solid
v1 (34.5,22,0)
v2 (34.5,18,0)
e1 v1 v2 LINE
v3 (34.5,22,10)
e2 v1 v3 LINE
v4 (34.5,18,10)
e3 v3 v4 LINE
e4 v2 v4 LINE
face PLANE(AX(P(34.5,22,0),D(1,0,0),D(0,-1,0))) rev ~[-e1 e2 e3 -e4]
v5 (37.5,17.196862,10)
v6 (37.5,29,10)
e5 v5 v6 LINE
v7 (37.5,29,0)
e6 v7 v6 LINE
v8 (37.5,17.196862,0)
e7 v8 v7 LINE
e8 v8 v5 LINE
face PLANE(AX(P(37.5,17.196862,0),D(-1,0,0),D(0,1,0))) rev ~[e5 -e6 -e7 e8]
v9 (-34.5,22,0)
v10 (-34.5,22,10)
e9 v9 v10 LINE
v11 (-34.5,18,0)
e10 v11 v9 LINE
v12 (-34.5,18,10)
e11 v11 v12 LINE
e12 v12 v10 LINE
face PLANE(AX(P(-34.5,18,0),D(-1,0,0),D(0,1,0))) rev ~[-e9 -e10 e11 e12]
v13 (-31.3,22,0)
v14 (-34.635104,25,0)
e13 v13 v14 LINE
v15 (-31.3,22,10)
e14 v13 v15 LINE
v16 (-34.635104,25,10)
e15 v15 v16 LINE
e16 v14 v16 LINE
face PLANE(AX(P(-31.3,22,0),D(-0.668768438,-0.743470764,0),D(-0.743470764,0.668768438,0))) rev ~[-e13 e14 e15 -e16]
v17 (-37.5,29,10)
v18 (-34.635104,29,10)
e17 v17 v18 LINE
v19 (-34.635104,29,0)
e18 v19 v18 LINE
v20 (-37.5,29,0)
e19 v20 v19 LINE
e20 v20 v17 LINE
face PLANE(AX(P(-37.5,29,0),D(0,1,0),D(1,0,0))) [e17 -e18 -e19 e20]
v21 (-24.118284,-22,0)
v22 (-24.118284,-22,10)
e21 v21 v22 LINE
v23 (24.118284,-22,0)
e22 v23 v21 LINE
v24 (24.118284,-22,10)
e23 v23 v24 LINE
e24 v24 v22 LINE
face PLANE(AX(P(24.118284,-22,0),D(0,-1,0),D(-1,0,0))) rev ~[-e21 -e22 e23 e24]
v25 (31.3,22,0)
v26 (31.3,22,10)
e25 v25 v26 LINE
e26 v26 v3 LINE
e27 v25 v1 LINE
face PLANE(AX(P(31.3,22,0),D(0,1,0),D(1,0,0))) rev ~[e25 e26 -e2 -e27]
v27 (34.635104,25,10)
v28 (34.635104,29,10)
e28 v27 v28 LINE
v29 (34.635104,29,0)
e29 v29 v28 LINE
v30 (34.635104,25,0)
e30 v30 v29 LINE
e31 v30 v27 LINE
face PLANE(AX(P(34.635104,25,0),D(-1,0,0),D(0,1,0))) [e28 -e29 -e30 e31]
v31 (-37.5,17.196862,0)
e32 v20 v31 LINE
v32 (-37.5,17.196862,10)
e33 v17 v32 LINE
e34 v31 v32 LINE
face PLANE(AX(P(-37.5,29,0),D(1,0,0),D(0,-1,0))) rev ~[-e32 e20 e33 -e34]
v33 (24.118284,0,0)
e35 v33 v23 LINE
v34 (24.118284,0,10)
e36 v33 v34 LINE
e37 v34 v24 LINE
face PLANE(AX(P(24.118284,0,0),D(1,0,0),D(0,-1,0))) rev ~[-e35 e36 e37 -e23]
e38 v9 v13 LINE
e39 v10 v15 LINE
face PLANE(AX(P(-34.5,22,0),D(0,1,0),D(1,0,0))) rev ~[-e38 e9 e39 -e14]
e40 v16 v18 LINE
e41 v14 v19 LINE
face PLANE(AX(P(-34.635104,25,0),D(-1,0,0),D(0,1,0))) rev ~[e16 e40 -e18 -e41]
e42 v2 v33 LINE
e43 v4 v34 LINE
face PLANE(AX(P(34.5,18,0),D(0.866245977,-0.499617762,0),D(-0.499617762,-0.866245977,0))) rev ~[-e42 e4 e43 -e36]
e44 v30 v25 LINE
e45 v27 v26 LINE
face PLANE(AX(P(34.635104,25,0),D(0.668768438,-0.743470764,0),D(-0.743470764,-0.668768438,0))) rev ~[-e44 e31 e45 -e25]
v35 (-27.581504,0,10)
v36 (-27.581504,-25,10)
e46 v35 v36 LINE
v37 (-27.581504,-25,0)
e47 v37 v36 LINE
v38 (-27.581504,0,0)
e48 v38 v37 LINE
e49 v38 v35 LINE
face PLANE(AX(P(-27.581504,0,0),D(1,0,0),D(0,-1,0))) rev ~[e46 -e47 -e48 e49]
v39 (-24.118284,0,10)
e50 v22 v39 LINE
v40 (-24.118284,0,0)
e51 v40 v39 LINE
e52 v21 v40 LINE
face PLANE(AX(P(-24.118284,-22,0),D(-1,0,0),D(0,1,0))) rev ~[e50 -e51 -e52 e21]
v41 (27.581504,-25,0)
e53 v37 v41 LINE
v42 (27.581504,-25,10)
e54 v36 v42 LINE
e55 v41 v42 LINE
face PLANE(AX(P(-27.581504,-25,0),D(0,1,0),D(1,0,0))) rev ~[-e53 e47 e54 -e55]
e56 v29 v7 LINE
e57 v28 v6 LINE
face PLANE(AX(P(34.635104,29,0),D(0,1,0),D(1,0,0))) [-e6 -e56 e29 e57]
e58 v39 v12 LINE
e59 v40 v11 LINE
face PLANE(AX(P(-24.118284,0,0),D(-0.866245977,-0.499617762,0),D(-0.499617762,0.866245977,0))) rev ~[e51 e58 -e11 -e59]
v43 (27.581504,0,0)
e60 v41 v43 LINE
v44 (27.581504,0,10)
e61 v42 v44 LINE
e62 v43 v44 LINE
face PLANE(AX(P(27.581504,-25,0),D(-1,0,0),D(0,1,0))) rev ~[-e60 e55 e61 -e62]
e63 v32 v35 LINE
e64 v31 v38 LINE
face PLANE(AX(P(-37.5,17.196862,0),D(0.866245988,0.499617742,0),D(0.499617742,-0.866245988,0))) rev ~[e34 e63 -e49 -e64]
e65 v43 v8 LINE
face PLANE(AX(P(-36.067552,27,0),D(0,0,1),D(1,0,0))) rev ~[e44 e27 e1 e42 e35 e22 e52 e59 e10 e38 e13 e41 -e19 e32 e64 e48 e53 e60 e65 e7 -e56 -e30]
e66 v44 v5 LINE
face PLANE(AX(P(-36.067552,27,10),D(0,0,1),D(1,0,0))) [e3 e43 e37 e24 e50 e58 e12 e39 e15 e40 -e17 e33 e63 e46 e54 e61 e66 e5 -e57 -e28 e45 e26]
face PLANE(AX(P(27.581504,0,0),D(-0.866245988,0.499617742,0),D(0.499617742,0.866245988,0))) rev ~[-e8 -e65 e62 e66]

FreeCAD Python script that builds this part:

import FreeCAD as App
import Part
import Sketcher

V = App.Vector

doc = App.newDocument("Part")
body = doc.addObject("PartDesign::Body", "Body")

# Sketch on XY plane
sketch1 = body.newObject("Sketcher::SketchObject", "Sketch")
sketch1.AttachmentSupport = (doc.getObject("XY_Plane"), [""])
sketch1.MapMode = "FlatFace"
sketch1.addGeometry([
    Part.LineSegment(V(-37.5, 29, 0), V(-37.5, 17.2, 0)),  # 0
    Part.LineSegment(V(-37.5, 17.2, 0), V(-27.6, 0, 0)),  # 1
    Part.LineSegment(V(-27.6, 0, 0), V(-27.6, -25, 0)),  # 2
    Part.LineSegment(V(-27.6, -25, 0), V(27.6, -25, 0)),  # 3
    Part.LineSegment(V(27.6, -25, 0), V(27.6, 0, 0)),  # 4
    Part.LineSegment(V(27.6, 0, 0), V(37.5, 17.2, 0)),  # 5
    Part.LineSegment(V(37.5, 17.2, 0), V(37.5, 29, 0)),  # 6
    Part.LineSegment(V(37.5, 29, 0), V(34.6, 29, 0)),  # 7
    Part.LineSegment(V(34.6, 29, 0), V(34.6, 25, 0)),  # 8
    Part.LineSegment(V(34.6, 25, 0), V(31.3, 22, 0)),  # 9
    Part.LineSegment(V(31.3, 22, 0), V(34.5, 22, 0)),  # 10
    Part.LineSegment(V(34.5, 22, 0), V(34.5, 18, 0)),  # 11
    Part.LineSegment(V(34.5, 18, 0), V(24.1, 0, 0)),  # 12
    Part.LineSegment(V(24.1, 0, 0), V(24.1, -22, 0)),  # 13
    Part.LineSegment(V(24.1, -22, 0), V(-24.1, -22, 0)),  # 14
    Part.LineSegment(V(-24.1, -22, 0), V(-24.1, 0, 0)),  # 15
    Part.LineSegment(V(-24.1, 0, 0), V(-34.5, 18, 0)),  # 16
    Part.LineSegment(V(-34.5, 18, 0), V(-34.5, 22, 0)),  # 17
    Part.LineSegment(V(-34.5, 22, 0), V(-31.3, 22, 0)),  # 18
    Part.LineSegment(V(-31.3, 22, 0), V(-34.6, 25, 0)),  # 19
    Part.LineSegment(V(-34.6, 25, 0), V(-34.6, 29, 0)),  # 20
    Part.LineSegment(V(-34.6, 29, 0), V(-37.5, 29, 0)),  # 21
], False)
sketch1.addConstraint([
    Sketcher.Constraint("Coincident", 0, 2, 1, 1),
    Sketcher.Constraint("Coincident", 1, 2, 2, 1),
    Sketcher.Constraint("Coincident", 2, 2, 3, 1),
    Sketcher.Constraint("Coincident", 3, 2, 4, 1),
    Sketcher.Constraint("Coincident", 4, 2, 5, 1),
    Sketcher.Constraint("Coincident", 5, 2, 6, 1),
    Sketcher.Constraint("Coincident", 6, 2, 7, 1),
    Sketcher.Constraint("Coincident", 7, 2, 8, 1),
    Sketcher.Constraint("Coincident", 8, 2, 9, 1),
    Sketcher.Constraint("Coincident", 9, 2, 10, 1),
    Sketcher.Constraint("Coincident", 10, 2, 11, 1),
    Sketcher.Constraint("Coincident", 11, 2, 12, 1),
    Sketcher.Constraint("Coincident", 12, 2, 13, 1),
    Sketcher.Constraint("Coincident", 13, 2, 14, 1),
    Sketcher.Constraint("Coincident", 14, 2, 15, 1),
    Sketcher.Constraint("Coincident", 15, 2, 16, 1),
    Sketcher.Constraint("Coincident", 16, 2, 17, 1),
    Sketcher.Constraint("Coincident", 17, 2, 18, 1),
    Sketcher.Constraint("Coincident", 18, 2, 19, 1),
    Sketcher.Constraint("Coincident", 19, 2, 20, 1),
    Sketcher.Constraint("Coincident", 20, 2, 21, 1),
    Sketcher.Constraint("Coincident", 21, 2, 0, 1),
    Sketcher.Constraint("Vertical", 0),
    Sketcher.Constraint("Vertical", 2),
    Sketcher.Constraint("Horizontal", 3),
    Sketcher.Constraint("Vertical", 4),
    Sketcher.Constraint("Vertical", 6),
    Sketcher.Constraint("Horizontal", 7),
    Sketcher.Constraint("Vertical", 8),
    Sketcher.Constraint("Horizontal", 10),
    Sketcher.Constraint("Vertical", 11),
    Sketcher.Constraint("Vertical", 13),
    Sketcher.Constraint("Horizontal", 14),
    Sketcher.Constraint("Vertical", 15),
    Sketcher.Constraint("Vertical", 17),
    Sketcher.Constraint("Horizontal", 18),
    Sketcher.Constraint("Vertical", 20),
    Sketcher.Constraint("Horizontal", 21),
    Sketcher.Constraint("Symmetric", 1, 2, 4, 2, -1, 1),
    Sketcher.Constraint("Symmetric", 12, 2, 15, 2, -1, 1),
    Sketcher.Constraint("Symmetric", 0, 2, 5, 2, -2),
    Sketcher.Constraint("Symmetric", 11, 2, 16, 2, -2),
    Sketcher.Constraint("Symmetric", 9, 2, 18, 2, -2),
    Sketcher.Constraint("Symmetric", 8, 2, 19, 2, -2),
    Sketcher.Constraint("PointOnObject", 1, 2, -1),
    Sketcher.Constraint("PointOnObject", 12, 2, -1),
    Sketcher.Constraint("Parallel", 5, 12),
    Sketcher.Constraint("Horizontal", 7, 2, 20, 2),
    Sketcher.Constraint("Equal", 8, 11),
    Sketcher.Constraint("DistanceY", 2, 2, 2, 1, 25.0),
    Sketcher.Constraint("DistanceY", 8, 2, 8, 1, 4.0),
    Sketcher.Constraint("DistanceY", 13, 2, 13, 1, 22.0),
    Sketcher.Constraint("DistanceX", 10, 1, 10, 2, 3.2),
    Sketcher.Constraint("DistanceY", -1, 1, 6, 2, 29.0),
    Sketcher.Constraint("DistanceY", -1, 1, 9, 2, 22.0),
    Sketcher.Constraint("DistanceX", 0, 2, 5, 2, 75.0),
    Sketcher.Constraint("DistanceX", 10, 2, 5, 2, 3.0),
    Sketcher.Constraint("DistanceX", 4, 2, 7, 2, 7.0536),
    Sketcher.Constraint("Distance", 1, 19.852169),
    Sketcher.Constraint("DistanceX", 3, 1, 3, 2, 55.163008),
])
pad1 = body.newObject("PartDesign::Pad", "Pad")
pad1.Profile = sketch1
pad1.Length = 10

doc.recompute()
